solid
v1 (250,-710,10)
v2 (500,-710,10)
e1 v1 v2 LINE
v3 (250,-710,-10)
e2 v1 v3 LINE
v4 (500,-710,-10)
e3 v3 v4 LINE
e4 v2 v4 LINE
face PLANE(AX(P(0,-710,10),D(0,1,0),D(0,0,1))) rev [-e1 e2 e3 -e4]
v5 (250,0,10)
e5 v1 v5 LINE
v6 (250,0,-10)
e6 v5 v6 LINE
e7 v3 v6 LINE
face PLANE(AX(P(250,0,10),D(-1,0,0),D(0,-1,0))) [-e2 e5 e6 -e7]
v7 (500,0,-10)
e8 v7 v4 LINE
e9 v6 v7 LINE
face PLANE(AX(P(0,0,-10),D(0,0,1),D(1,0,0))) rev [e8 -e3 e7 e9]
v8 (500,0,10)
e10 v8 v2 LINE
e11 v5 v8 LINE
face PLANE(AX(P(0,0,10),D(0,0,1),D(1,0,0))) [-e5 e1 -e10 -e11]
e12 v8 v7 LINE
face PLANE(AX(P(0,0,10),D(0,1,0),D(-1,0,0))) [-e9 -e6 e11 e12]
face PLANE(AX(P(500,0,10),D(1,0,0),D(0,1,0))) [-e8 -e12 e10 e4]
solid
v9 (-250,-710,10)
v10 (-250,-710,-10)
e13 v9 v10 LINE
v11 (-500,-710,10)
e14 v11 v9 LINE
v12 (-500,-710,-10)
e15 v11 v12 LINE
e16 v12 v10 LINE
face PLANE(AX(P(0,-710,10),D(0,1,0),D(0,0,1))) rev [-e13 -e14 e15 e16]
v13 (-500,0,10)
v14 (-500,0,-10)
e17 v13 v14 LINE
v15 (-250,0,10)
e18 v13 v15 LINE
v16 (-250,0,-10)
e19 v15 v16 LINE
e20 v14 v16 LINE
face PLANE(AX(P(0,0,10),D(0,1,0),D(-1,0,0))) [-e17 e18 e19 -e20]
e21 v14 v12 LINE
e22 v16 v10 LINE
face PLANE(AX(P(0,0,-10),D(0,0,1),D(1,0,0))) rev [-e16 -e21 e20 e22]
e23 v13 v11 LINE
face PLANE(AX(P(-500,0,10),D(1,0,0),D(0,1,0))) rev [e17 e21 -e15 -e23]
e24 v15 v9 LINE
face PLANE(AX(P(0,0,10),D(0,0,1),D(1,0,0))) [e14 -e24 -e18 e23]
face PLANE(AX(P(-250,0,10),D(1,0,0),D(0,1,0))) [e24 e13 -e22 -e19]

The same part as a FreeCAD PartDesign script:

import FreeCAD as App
import Part
import Sketcher

V = App.Vector
Q = App.Units.Quantity


def add_polygon(sketch, points):
    """Adds a closed chain of lines whose ends are joined by coincident constraints."""
    first, n = sketch.GeometryCount, len(points)
    for a, b in zip(points, points[1:] + points[:1]):
        sketch.addGeometry(Part.LineSegment(App.Vector(*a, 0), App.Vector(*b, 0)), False)
    for i in range(n):
        sketch.addConstraint(Sketcher.Constraint("Coincident", first + i, 2, first + (i + 1) % n, 1))

doc = App.newDocument("Part")
body = doc.addObject("PartDesign::Body", "Body")

sketch1 = doc.addObject("Sketcher::SketchObject", "Sketch")
body.addObject(sketch1)
sketch1.AttachmentSupport = (doc.XY_Plane, [""])
sketch1.MapMode = "FlatFace"
add_polygon(sketch1, [(-500, 0), (-500, -710), (-250, -710), (-250, 0)])
sketch1.addConstraint([
    Sketcher.Constraint("Vertical", 0),
    Sketcher.Constraint("Horizontal", 1),
    Sketcher.Constraint("Vertical", 2),
    Sketcher.Constraint("Horizontal", 3),
    Sketcher.Constraint("PointOnObject", 2, 2, -1),
    Sketcher.Constraint("DistanceX", 1, 1, 1, 2, Q("250 mm")),
    Sketcher.Constraint("DistanceY", 0, 2, 0, 1, Q("710 mm")),
    Sketcher.Constraint("DistanceX", 0, 2, -1, 1, Q("500 mm")),
])
pad1 = doc.addObject("PartDesign::Pad", "Pad")
body.addObject(pad1)
pad1.Profile = sketch1
pad1.Length = 20
pad1.Midplane = True
body2 = doc.addObject("PartDesign::Body", "Body001")

sketch2 = doc.addObject("Sketcher::SketchObject", "Sketch001")
body2.addObject(sketch2)
sketch2.AttachmentSupport = (doc.getObject("XY_Plane001"), [""])
sketch2.MapMode = "FlatFace"
add_polygon(sketch2, [(250, 0), (250, -710), (500, -710), (500, 0)])
sketch2.addConstraint([
    Sketcher.Constraint("Vertical", 0),
    Sketcher.Constraint("Horizontal", 1),
    Sketcher.Constraint("Vertical", 2),
    Sketcher.Constraint("Horizontal", 3),
    Sketcher.Constraint("PointOnObject", 2, 2, -1),
    Sketcher.Constraint("DistanceX", 1, 1, 1, 2, Q("250 mm")),
    Sketcher.Constraint("DistanceY", 0, 2, 0, 1, Q("710 mm")),
    Sketcher.Constraint("DistanceX", -1, 1, 0, 2, Q("250 mm")),
])
pad2 = doc.addObject("PartDesign::Pad", "Pad001")
body2.addObject(pad2)
pad2.Profile = sketch2
pad2.Length = 20
pad2.Midplane = True

doc.recompute()
